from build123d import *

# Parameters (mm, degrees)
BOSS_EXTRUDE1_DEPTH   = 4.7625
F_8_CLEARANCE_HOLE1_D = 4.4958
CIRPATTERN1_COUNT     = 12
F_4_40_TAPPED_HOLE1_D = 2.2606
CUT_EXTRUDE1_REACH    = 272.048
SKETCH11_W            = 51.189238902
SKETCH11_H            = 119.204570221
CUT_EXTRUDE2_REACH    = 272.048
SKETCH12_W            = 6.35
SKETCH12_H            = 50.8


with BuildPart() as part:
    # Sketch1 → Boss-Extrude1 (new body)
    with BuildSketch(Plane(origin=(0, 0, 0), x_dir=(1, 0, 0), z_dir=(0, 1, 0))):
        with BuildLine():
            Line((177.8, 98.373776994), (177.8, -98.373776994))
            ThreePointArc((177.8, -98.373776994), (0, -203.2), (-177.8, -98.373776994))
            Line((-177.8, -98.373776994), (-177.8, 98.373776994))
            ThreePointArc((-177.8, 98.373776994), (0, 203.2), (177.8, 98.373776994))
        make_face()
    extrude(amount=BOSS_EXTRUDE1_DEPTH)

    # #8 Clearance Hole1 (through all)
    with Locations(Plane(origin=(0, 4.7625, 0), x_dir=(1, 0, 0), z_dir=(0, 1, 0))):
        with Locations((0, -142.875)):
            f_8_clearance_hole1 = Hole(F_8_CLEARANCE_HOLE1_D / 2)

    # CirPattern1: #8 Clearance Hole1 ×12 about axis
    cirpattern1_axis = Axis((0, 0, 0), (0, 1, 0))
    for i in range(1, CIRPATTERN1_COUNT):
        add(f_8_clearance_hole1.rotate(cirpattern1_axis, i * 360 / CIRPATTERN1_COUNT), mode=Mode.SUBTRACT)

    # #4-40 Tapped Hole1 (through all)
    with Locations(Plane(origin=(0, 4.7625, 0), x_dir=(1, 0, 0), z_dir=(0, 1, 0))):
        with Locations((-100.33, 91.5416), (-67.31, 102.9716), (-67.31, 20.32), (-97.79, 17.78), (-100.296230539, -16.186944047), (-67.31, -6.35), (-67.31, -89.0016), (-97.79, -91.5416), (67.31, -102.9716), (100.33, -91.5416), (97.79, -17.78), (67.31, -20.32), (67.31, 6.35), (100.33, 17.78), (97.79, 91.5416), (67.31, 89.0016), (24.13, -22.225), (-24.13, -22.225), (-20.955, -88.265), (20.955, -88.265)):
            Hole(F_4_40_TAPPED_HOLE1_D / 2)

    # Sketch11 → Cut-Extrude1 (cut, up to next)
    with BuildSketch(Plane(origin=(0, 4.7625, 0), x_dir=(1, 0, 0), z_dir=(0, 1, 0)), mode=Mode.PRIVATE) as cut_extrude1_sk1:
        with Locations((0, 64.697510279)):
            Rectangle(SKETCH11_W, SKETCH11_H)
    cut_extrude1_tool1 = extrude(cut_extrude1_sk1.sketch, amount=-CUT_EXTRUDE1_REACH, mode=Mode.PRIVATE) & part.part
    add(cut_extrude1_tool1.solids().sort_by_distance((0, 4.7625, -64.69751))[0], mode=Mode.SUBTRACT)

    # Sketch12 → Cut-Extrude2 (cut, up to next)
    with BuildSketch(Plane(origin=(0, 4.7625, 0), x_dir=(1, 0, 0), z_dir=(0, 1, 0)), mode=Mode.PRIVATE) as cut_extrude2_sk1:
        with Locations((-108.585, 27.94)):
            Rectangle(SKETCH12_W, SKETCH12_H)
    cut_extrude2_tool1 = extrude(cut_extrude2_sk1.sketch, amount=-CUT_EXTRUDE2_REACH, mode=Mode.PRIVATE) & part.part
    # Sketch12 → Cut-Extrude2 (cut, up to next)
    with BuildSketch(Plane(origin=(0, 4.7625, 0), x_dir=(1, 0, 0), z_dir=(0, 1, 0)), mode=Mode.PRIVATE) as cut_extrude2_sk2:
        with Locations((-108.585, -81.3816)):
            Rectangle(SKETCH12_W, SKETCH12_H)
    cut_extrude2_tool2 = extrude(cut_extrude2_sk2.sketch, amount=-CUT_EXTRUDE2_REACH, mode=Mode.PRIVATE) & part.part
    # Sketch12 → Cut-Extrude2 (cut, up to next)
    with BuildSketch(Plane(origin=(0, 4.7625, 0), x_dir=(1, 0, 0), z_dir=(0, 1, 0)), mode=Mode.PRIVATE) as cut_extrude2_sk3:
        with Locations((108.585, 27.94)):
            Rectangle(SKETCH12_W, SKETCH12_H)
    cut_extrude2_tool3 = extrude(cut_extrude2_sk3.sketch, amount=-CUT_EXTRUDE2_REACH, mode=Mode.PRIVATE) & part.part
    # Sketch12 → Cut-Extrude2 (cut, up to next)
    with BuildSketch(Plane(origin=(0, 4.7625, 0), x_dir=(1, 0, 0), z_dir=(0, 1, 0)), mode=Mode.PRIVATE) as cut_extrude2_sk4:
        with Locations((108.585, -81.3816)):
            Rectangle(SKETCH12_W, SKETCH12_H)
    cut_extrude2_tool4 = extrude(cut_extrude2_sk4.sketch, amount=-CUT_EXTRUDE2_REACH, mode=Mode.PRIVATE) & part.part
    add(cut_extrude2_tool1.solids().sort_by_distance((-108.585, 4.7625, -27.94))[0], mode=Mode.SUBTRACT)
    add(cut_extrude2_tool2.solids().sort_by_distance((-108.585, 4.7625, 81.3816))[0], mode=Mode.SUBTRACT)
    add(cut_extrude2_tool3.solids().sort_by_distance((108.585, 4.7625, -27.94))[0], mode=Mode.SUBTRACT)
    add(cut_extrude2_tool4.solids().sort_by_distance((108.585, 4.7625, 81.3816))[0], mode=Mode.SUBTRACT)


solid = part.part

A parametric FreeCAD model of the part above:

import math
import FreeCAD as App
import Part
import Sketcher
from FreeCAD import Vector
Q = App.Units.Quantity

doc = App.newDocument("Part")
body = doc.addObject("PartDesign::Body", "Body")

sketch1 = body.newObject("Sketcher::SketchObject", "Sketch")
sketch1.AttachmentSupport = (doc.getObject("XZ_Plane"), [""])
sketch1.MapMode = "FlatFace"
sketch1.addGeometry(Part.LineSegment(Vector(177.8, 98.373777, 0), Vector(177.8, -98.373777, 0)), False)
sketch1.addGeometry(Part.ArcOfCircle(Part.Circle(Vector(0, 0, 0), Vector(0, 0, 1), 203.2), math.radians(-151.044976), math.radians(-28.955024)), False)
sketch1.addGeometry(Part.LineSegment(Vector(-177.8, -98.373777, 0), Vector(-177.8, 98.373777, 0)), False)
sketch1.addGeometry(Part.ArcOfCircle(Part.Circle(Vector(0, 0, 0), Vector(0, 0, 1), 203.2), math.radians(28.955024), math.radians(151.044976)), False)
sketch1.addConstraint(Sketcher.Constraint("Coincident", 0, 2, 1, 2))
sketch1.addConstraint(Sketcher.Constraint("Coincident", 1, 1, 2, 1))
sketch1.addConstraint(Sketcher.Constraint("Coincident", 2, 2, 3, 2))
sketch1.addConstraint(Sketcher.Constraint("Coincident", 3, 1, 0, 1))
sketch1.addConstraint(Sketcher.Constraint("Vertical", 0))
sketch1.addConstraint(Sketcher.Constraint("Vertical", 2))
sketch1.addConstraint(Sketcher.Constraint("Coincident", 1, 3, -1, 1))
sketch1.addConstraint(Sketcher.Constraint("Coincident", 3, 3, -1, 1))
sketch1.addConstraint(Sketcher.Constraint("Equal", 1, 3))
sketch1.addConstraint(Sketcher.Constraint("Horizontal", 0, 2, 1, 1))
sketch1.addConstraint(Sketcher.Constraint("Radius", 1, Q("8 in")))
sketch1.addConstraint(Sketcher.Constraint("DistanceX", -1, 1, 0, 2, Q("7 in")))
pad1 = body.newObject("PartDesign::Pad", "Pad")
pad1.Profile = sketch1
pad1.Length = Q("0.1875 in")
pad1.Reversed = True

sketch2 = body.newObject("Sketcher::SketchObject", "Sketch001")
sketch2.AttachmentSupport = (doc.getObject("XZ_Plane"), [""])
sketch2.MapMode = "FlatFace"
sketch2.AttachmentOffset = App.Placement(Vector(0, 0, -0.1875 * 25.4), App.Rotation())
sketch2.addGeometry(Part.Circle(Vector(0, 142.875, 0), Vector(0, 0, 1), 2.2479), False)
sketch2.addConstraint(Sketcher.Constraint("PointOnObject", 0, 3, -2))
sketch2.addConstraint(Sketcher.Constraint("Diameter", 0, Q("0.177 in")))
sketch2.addConstraint(Sketcher.Constraint("DistanceY", -1, 1, 0, 3, Q("5.625 in")))
doc.recompute()
hole = body.newObject("PartDesign::Hole", "Hole")
hole.Profile = sketch2
hole.ThreadType = "None"
hole.Diameter = Q("0.177 in")
hole.DepthType = "ThroughAll"
hole.Reversed = True
doc.recompute()

polarpattern = body.newObject("PartDesign::PolarPattern", "PolarPattern")
polarpattern.Originals = [hole]
polarpattern.Axis = (doc.getObject("Y_Axis"), [""])
polarpattern.Angle = 360
polarpattern.Occurrences = 12
body.Tip = polarpattern

sketch3 = body.newObject("Sketcher::SketchObject", "Sketch002")
sketch3.AttachmentSupport = (doc.getObject("XZ_Plane"), [""])
sketch3.MapMode = "FlatFace"
sketch3.AttachmentOffset = App.Placement(Vector(0, 0, -0.1875 * 25.4), App.Rotation())
sketch3.addGeometry(Part.Circle(Vector(-100.33, -91.5416, 0), Vector(0, 0, 1), 1.1303), False)
sketch3.addGeometry(Part.Circle(Vector(-67.31, -102.9716, 0), Vector(0, 0, 1), 1.1303), False)
sketch3.addGeometry(Part.Circle(Vector(-67.31, -20.32, 0), Vector(0, 0, 1), 1.1303), False)
sketch3.addGeometry(Part.Circle(Vector(-97.79, -17.78, 0), Vector(0, 0, 1), 1.1303), False)
sketch3.addGeometry(Part.Circle(Vector(-100.296231, 16.186944, 0), Vector(0, 0, 1), 1.1303), False)
sketch3.addGeometry(Part.Circle(Vector(-67.31, 6.35, 0), Vector(0, 0, 1), 1.1303), False)
sketch3.addGeometry(Part.Circle(Vector(-67.31, 89.0016, 0), Vector(0, 0, 1), 1.1303), False)
sketch3.addGeometry(Part.Circle(Vector(-97.79, 91.5416, 0), Vector(0, 0, 1), 1.1303), False)
sketch3.addGeometry(Part.Circle(Vector(67.31, 102.9716, 0), Vector(0, 0, 1), 1.1303), False)
sketch3.addGeometry(Part.Circle(Vector(100.33, 91.5416, 0), Vector(0, 0, 1), 1.1303), False)
sketch3.addGeometry(Part.Circle(Vector(97.79, 17.78, 0), Vector(0, 0, 1), 1.1303), False)
sketch3.addGeometry(Part.Circle(Vector(67.31, 20.32, 0), Vector(0, 0, 1), 1.1303), False)
sketch3.addGeometry(Part.Circle(Vector(67.31, -6.35, 0), Vector(0, 0, 1), 1.1303), False)
sketch3.addGeometry(Part.Circle(Vector(100.33, -17.78, 0), Vector(0, 0, 1), 1.1303), False)
sketch3.addGeometry(Part.Circle(Vector(97.79, -91.5416, 0), Vector(0, 0, 1), 1.1303), False)
sketch3.addGeometry(Part.Circle(Vector(67.31, -89.0016, 0), Vector(0, 0, 1), 1.1303), False)
sketch3.addGeometry(Part.Circle(Vector(24.13, 22.225, 0), Vector(0, 0, 1), 1.1303), False)
sketch3.addGeometry(Part.Circle(Vector(-24.13, 22.225, 0), Vector(0, 0, 1), 1.1303), False)
sketch3.addGeometry(Part.Circle(Vector(-20.955, 88.265, 0), Vector(0, 0, 1), 1.1303), False)
sketch3.addGeometry(Part.Circle(Vector(20.955, 88.265, 0), Vector(0, 0, 1), 1.1303), False)
sketch3.addConstraint(Sketcher.Constraint("Equal", 0, 1))
sketch3.addConstraint(Sketcher.Constraint("Equal", 1, 2))
sketch3.addConstraint(Sketcher.Constraint("Equal", 2, 3))
sketch3.addConstraint(Sketcher.Constraint("Equal", 3, 4))
sketch3.addConstraint(Sketcher.Constraint("Equal", 4, 5))
sketch3.addConstraint(Sketcher.Constraint("Equal", 5, 6))
sketch3.addConstraint(Sketcher.Constraint("Equal", 6, 7))
sketch3.addConstraint(Sketcher.Constraint("Equal", 7, 8))
sketch3.addConstraint(Sketcher.Constraint("Equal", 8, 9))
sketch3.addConstraint(Sketcher.Constraint("Equal", 9, 10))
sketch3.addConstraint(Sketcher.Constraint("Equal", 10, 11))
sketch3.addConstraint(Sketcher.Constraint("Equal", 11, 12))
sketch3.addConstraint(Sketcher.Constraint("Equal", 12, 13))
sketch3.addConstraint(Sketcher.Constraint("Equal", 13, 14))
sketch3.addConstraint(Sketcher.Constraint("Equal", 14, 15))
sketch3.addConstraint(Sketcher.Constraint("Equal", 15, 16))
sketch3.addConstraint(Sketcher.Constraint("Equal", 16, 17))
sketch3.addConstraint(Sketcher.Constraint("Equal", 17, 18))
sketch3.addConstraint(Sketcher.Constraint("Equal", 18, 19))
sketch3.addConstraint(Sketcher.Constraint("Symmetric", 1, 3, 8, 3, -1, 1))
sketch3.addConstraint(Sketcher.Constraint("Symmetric", 0, 3, 9, 3, -1, 1))
sketch3.addConstraint(Sketcher.Constraint("Symmetric", 3, 3, 10, 3, -1, 1))
sketch3.addConstraint(Sketcher.Constraint("Symmetric", 2, 3, 11, 3, -1, 1))
sketch3.addConstraint(Sketcher.Constraint("Symmetric", 5, 3, 12, 3, -1, 1))
sketch3.addConstraint(Sketcher.Constraint("Symmetric", 7, 3, 14, 3, -1, 1))
sketch3.addConstraint(Sketcher.Constraint("Symmetric", 6, 3, 15, 3, -1, 1))
sketch3.addConstraint(Sketcher.Constraint("Symmetric", 16, 3, 17, 3, -2))
sketch3.addConstraint(Sketcher.Constraint("Symmetric", 18, 3, 19, 3, -2))
sketch3.addConstraint(Sketcher.Constraint("Horizontal", 7, 3, 9, 3))
sketch3.addConstraint(Sketcher.Constraint("Horizontal", 3, 3, 13, 3))
sketch3.addConstraint(Sketcher.Constraint("Vertical", 1, 3, 2, 3))
sketch3.addConstraint(Sketcher.Constraint("Vertical", 2, 3, 5, 3))
sketch3.addConstraint(Sketcher.Constraint("Vertical", 5, 3, 6, 3))
sketch3.addConstraint(Sketcher.Constraint("Vertical", 3, 3, 7, 3))
sketch3.addConstraint(Sketcher.Constraint("Vertical", 9, 3, 13, 3))
sketch3.addConstraint(Sketcher.Constraint("Diameter", 0, Q("0.089 in")))
sketch3.addConstraint(Sketcher.Constraint("DistanceX", 16, 3, 13, 3, Q("3 in")))
sketch3.addConstraint(Sketcher.Constraint("DistanceY", 2, 3, -1, 1, Q("0.8 in")))
sketch3.addConstraint(Sketcher.Constraint("DistanceY", 3, 3, -1, 1, Q("0.7 in")))
sketch3.addConstraint(Sketcher.Constraint("DistanceX", 0, 3, 1, 3, Q("1.3 in")))
sketch3.addConstraint(Sketcher.Constraint("DistanceX", 3, 3, 2, 3, Q("1.2 in")))
sketch3.addConstraint(Sketcher.Constraint("DistanceY", 6, 3, 7, 3, Q("0.1 in")))
sketch3.addConstraint(Sketcher.Constraint("DistanceX", 6, 3, 8, 3, Q("5.3 in")))
sketch3.addConstraint(Sketcher.Constraint("DistanceY", 12, 3, 5, 3, Q("0.5 in")))
sketch3.addConstraint(Sketcher.Constraint("DistanceY", 17, 3, 18, 3, Q("2.6 in")))
sketch3.addConstraint(Sketcher.Constraint("DistanceY", 1, 3, 0, 3, Q("0.45 in")))
sketch3.addConstraint(Sketcher.Constraint("DistanceX", 18, 3, 19, 3, Q("1.65 in")))
sketch3.addConstraint(Sketcher.Constraint("DistanceY", 0, 3, -1, 1, Q("3.604 in")))
sketch3.addConstraint(Sketcher.Constraint("DistanceY", -1, 1, 16, 3, Q("0.875 in")))
sketch3.addConstraint(Sketcher.Constraint("DistanceX", 4, 3, -1, 1, Q("100.296231 mm")))
sketch3.addConstraint(Sketcher.Constraint("DistanceY", -1, 1, 4, 3, Q("16.186944 mm")))
doc.recompute()
hole2 = body.newObject("PartDesign::Hole", "Hole001")
hole2.Profile = sketch3
hole2.ThreadType = "None"
hole2.Diameter = Q("0.089 in")
hole2.DepthType = "ThroughAll"
hole2.Reversed = True

sketch4 = body.newObject("Sketcher::SketchObject", "Sketch003")
sketch4.AttachmentSupport = (doc.getObject("XZ_Plane"), [""])
sketch4.MapMode = "FlatFace"
sketch4.AttachmentOffset = App.Placement(Vector(0, 0, -0.1875 * 25.4), App.Rotation())
sketch4.addGeometry(Part.LineSegment(Vector(-25.594619, -124.299795, 0), Vector(-25.594619, -5.095225, 0)), False)
sketch4.addGeometry(Part.LineSegment(Vector(-25.594619, -5.095225, 0), Vector(25.594619, -5.095225, 0)), False)
sketch4.addGeometry(Part.LineSegment(Vector(25.594619, -5.095225, 0), Vector(25.594619, -124.299795, 0)), False)
sketch4.addGeometry(Part.LineSegment(Vector(25.594619, -124.299795, 0), Vector(-25.594619, -124.299795, 0)), False)
sketch4.addConstraint(Sketcher.Constraint("Coincident", 0, 2, 1, 1))
sketch4.addConstraint(Sketcher.Constraint("Coincident", 1, 2, 2, 1))
sketch4.addConstraint(Sketcher.Constraint("Coincident", 2, 2, 3, 1))
sketch4.addConstraint(Sketcher.Constraint("Coincident", 3, 2, 0, 1))
sketch4.addConstraint(Sketcher.Constraint("Vertical", 0))
sketch4.addConstraint(Sketcher.Constraint("Horizontal", 1))
sketch4.addConstraint(Sketcher.Constraint("Vertical", 2))
sketch4.addConstraint(Sketcher.Constraint("Horizontal", 3))
sketch4.addConstraint(Sketcher.Constraint("DistanceX", 1, 1, 1, 2, Q("51.189239 mm")))
sketch4.addConstraint(Sketcher.Constraint("DistanceY", 0, 1, 0, 2, Q("119.20457 mm")))
sketch4.addConstraint(Sketcher.Constraint("DistanceX", 0, 2, -1, 1, Q("25.594619 mm")))
sketch4.addConstraint(Sketcher.Constraint("DistanceY", 0, 2, -1, 1, Q("5.095225 mm")))
pocket1 = body.newObject("PartDesign::Pocket", "Pocket")
pocket1.Profile = sketch4
pocket1.Type = "UpToFirst"
pocket1.Reversed = True

sketch5 = body.newObject("Sketcher::SketchObject", "Sketch004")
sketch5.AttachmentSupport = (doc.getObject("XZ_Plane"), [""])
sketch5.MapMode = "FlatFace"
sketch5.AttachmentOffset = App.Placement(Vector(0, 0, -0.1875 * 25.4), App.Rotation())
sketch5.addGeometry(Part.LineSegment(Vector(-111.76, -53.34, 0), Vector(-111.76, -2.54, 0)), False)
sketch5.addGeometry(Part.LineSegment(Vector(-111.76, -2.54, 0), Vector(-105.41, -2.54, 0)), False)
sketch5.addGeometry(Part.LineSegment(Vector(-105.41, -2.54, 0), Vector(-105.41, -53.34, 0)), False)
sketch5.addGeometry(Part.LineSegment(Vector(-105.41, -53.34, 0), Vector(-111.76, -53.34, 0)), False)
sketch5.addConstraint(Sketcher.Constraint("Coincident", 0, 2, 1, 1))
sketch5.addConstraint(Sketcher.Constraint("Coincident", 1, 2, 2, 1))
sketch5.addConstraint(Sketcher.Constraint("Coincident", 2, 2, 3, 1))
sketch5.addConstraint(Sketcher.Constraint("Coincident", 3, 2, 0, 1))
sketch5.addConstraint(Sketcher.Constraint("Vertical", 0))
sketch5.addConstraint(Sketcher.Constraint("Horizontal", 1))
sketch5.addConstraint(Sketcher.Constraint("Vertical", 2))
sketch5.addConstraint(Sketcher.Constraint("Horizontal", 3))
sketch5.addConstraint(Sketcher.Constraint("DistanceY", 0, 1, 0, 2, Q("2 in")))
sketch5.addConstraint(Sketcher.Constraint("DistanceX", 1, 1, 1, 2, Q("0.25 in")))
sketch5.addConstraint(Sketcher.Constraint("DistanceX", 0, 2, -1, 1, Q("4.4 in")))
sketch5.addConstraint(Sketcher.Constraint("DistanceY", 0, 2, -1, 1, Q("0.1 in")))
pocket2 = body.newObject("PartDesign::Pocket", "Pocket001")
pocket2.Profile = sketch5
pocket2.Type = "UpToFirst"
pocket2.Reversed = True

sketch6 = body.newObject("Sketcher::SketchObject", "Sketch005")
sketch6.AttachmentSupport = (doc.getObject("XZ_Plane"), [""])
sketch6.MapMode = "FlatFace"
sketch6.AttachmentOffset = App.Placement(Vector(0, 0, -0.1875 * 25.4), App.Rotation())
sketch6.addGeometry(Part.LineSegment(Vector(-111.76, 55.9816, 0), Vector(-111.76, 106.7816, 0)), False)
sketch6.addGeometry(Part.LineSegment(Vector(-111.76, 106.7816, 0), Vector(-105.41, 106.7816, 0)), False)
sketch6.addGeometry(Part.LineSegment(Vector(-105.41, 106.7816, 0), Vector(-105.41, 55.9816, 0)), False)
sketch6.addGeometry(Part.LineSegment(Vector(-105.41, 55.9816, 0), Vector(-111.76, 55.9816, 0)), False)
sketch6.addConstraint(Sketcher.Constraint("Coincident", 0, 2, 1, 1))
sketch6.addConstraint(Sketcher.Constraint("Coincident", 1, 2, 2, 1))
sketch6.addConstraint(Sketcher.Constraint("Coincident", 2, 2, 3, 1))
sketch6.addConstraint(Sketcher.Constraint("Coincident", 3, 2, 0, 1))
sketch6.addConstraint(Sketcher.Constraint("Vertical", 0))
sketch6.addConstraint(Sketcher.Constraint("Horizontal", 1))
sketch6.addConstraint(Sketcher.Constraint("Vertical", 2))
sketch6.addConstraint(Sketcher.Constraint("Horizontal", 3))
sketch6.addConstraint(Sketcher.Constraint("DistanceY", 0, 1, 0, 2, Q("2 in")))
sketch6.addConstraint(Sketcher.Constraint("DistanceX", 1, 1, 1, 2, Q("0.25 in")))
sketch6.addConstraint(Sketcher.Constraint("DistanceX", 0, 2, -1, 1, Q("4.4 in")))
sketch6.addConstraint(Sketcher.Constraint("DistanceY", -1, 1, 0, 2, Q("4.204 in")))
pocket3 = body.newObject("PartDesign::Pocket", "Pocket002")
pocket3.Profile = sketch6
pocket3.Type = "UpToFirst"
pocket3.Reversed = True

sketch7 = body.newObject("Sketcher::SketchObject", "Sketch006")
sketch7.AttachmentSupport = (doc.getObject("XZ_Plane"), [""])
sketch7.MapMode = "FlatFace"
sketch7.AttachmentOffset = App.Placement(Vector(0, 0, -0.1875 * 25.4), App.Rotation())
sketch7.addGeometry(Part.LineSegment(Vector(105.41, -53.34, 0), Vector(105.41, -2.54, 0)), False)
sketch7.addGeometry(Part.LineSegment(Vector(105.41, -2.54, 0), Vector(111.76, -2.54, 0)), False)
sketch7.addGeometry(Part.LineSegment(Vector(111.76, -2.54, 0), Vector(111.76, -53.34, 0)), False)
sketch7.addGeometry(Part.LineSegment(Vector(111.76, -53.34, 0), Vector(105.41, -53.34, 0)), False)
sketch7.addConstraint(Sketcher.Constraint("Coincident", 0, 2, 1, 1))
sketch7.addConstraint(Sketcher.Constraint("Coincident", 1, 2, 2, 1))
sketch7.addConstraint(Sketcher.Constraint("Coincident", 2, 2, 3, 1))
sketch7.addConstraint(Sketcher.Constraint("Coincident", 3, 2, 0, 1))
sketch7.addConstraint(Sketcher.Constraint("Vertical", 0))
sketch7.addConstraint(Sketcher.Constraint("Horizontal", 1))
sketch7.addConstraint(Sketcher.Constraint("Vertical", 2))
sketch7.addConstraint(Sketcher.Constraint("Horizontal", 3))
sketch7.addConstraint(Sketcher.Constraint("DistanceY", 0, 1, 0, 2, Q("2 in")))
sketch7.addConstraint(Sketcher.Constraint("DistanceX", 1, 1, 1, 2, Q("0.25 in")))
sketch7.addConstraint(Sketcher.Constraint("DistanceY", 0, 2, -1, 1, Q("0.1 in")))
sketch7.addConstraint(Sketcher.Constraint("DistanceX", -1, 1, 1, 2, Q("4.4 in")))
pocket4 = body.newObject("PartDesign::Pocket", "Pocket003")
pocket4.Profile = sketch7
pocket4.Type = "UpToFirst"
pocket4.Reversed = True

sketch8 = body.newObject("Sketcher::SketchObject", "Sketch007")
sketch8.AttachmentSupport = (doc.getObject("XZ_Plane"), [""])
sketch8.MapMode = "FlatFace"
sketch8.AttachmentOffset = App.Placement(Vector(0, 0, -0.1875 * 25.4), App.Rotation())
sketch8.addGeometry(Part.LineSegment(Vector(105.41, 55.9816, 0), Vector(105.41, 106.7816, 0)), False)
sketch8.addGeometry(Part.LineSegment(Vector(105.41, 106.7816, 0), Vector(111.76, 106.7816, 0)), False)
sketch8.addGeometry(Part.LineSegment(Vector(111.76, 106.7816, 0), Vector(111.76, 55.9816, 0)), False)
sketch8.addGeometry(Part.LineSegment(Vector(111.76, 55.9816, 0), Vector(105.41, 55.9816, 0)), False)
sketch8.addConstraint(Sketcher.Constraint("Coincident", 0, 2, 1, 1))
sketch8.addConstraint(Sketcher.Constraint("Coincident", 1, 2, 2, 1))
sketch8.addConstraint(Sketcher.Constraint("Coincident", 2, 2, 3, 1))
sketch8.addConstraint(Sketcher.Constraint("Coincident", 3, 2, 0, 1))
sketch8.addConstraint(Sketcher.Constraint("Vertical", 0))
sketch8.addConstraint(Sketcher.Constraint("Horizontal", 1))
sketch8.addConstraint(Sketcher.Constraint("Vertical", 2))
sketch8.addConstraint(Sketcher.Constraint("Horizontal", 3))
sketch8.addConstraint(Sketcher.Constraint("DistanceY", 0, 1, 0, 2, Q("2 in")))
sketch8.addConstraint(Sketcher.Constraint("DistanceX", 1, 1, 1, 2, Q("0.25 in")))
sketch8.addConstraint(Sketcher.Constraint("DistanceX", -1, 1, 1, 2, Q("4.4 in")))
sketch8.addConstraint(Sketcher.Constraint("DistanceY", -1, 1, 0, 2, Q("4.204 in")))
pocket5 = body.newObject("PartDesign::Pocket", "Pocket004")
pocket5.Profile = sketch8
pocket5.Type = "UpToFirst"
pocket5.Reversed = True

doc.recompute()
